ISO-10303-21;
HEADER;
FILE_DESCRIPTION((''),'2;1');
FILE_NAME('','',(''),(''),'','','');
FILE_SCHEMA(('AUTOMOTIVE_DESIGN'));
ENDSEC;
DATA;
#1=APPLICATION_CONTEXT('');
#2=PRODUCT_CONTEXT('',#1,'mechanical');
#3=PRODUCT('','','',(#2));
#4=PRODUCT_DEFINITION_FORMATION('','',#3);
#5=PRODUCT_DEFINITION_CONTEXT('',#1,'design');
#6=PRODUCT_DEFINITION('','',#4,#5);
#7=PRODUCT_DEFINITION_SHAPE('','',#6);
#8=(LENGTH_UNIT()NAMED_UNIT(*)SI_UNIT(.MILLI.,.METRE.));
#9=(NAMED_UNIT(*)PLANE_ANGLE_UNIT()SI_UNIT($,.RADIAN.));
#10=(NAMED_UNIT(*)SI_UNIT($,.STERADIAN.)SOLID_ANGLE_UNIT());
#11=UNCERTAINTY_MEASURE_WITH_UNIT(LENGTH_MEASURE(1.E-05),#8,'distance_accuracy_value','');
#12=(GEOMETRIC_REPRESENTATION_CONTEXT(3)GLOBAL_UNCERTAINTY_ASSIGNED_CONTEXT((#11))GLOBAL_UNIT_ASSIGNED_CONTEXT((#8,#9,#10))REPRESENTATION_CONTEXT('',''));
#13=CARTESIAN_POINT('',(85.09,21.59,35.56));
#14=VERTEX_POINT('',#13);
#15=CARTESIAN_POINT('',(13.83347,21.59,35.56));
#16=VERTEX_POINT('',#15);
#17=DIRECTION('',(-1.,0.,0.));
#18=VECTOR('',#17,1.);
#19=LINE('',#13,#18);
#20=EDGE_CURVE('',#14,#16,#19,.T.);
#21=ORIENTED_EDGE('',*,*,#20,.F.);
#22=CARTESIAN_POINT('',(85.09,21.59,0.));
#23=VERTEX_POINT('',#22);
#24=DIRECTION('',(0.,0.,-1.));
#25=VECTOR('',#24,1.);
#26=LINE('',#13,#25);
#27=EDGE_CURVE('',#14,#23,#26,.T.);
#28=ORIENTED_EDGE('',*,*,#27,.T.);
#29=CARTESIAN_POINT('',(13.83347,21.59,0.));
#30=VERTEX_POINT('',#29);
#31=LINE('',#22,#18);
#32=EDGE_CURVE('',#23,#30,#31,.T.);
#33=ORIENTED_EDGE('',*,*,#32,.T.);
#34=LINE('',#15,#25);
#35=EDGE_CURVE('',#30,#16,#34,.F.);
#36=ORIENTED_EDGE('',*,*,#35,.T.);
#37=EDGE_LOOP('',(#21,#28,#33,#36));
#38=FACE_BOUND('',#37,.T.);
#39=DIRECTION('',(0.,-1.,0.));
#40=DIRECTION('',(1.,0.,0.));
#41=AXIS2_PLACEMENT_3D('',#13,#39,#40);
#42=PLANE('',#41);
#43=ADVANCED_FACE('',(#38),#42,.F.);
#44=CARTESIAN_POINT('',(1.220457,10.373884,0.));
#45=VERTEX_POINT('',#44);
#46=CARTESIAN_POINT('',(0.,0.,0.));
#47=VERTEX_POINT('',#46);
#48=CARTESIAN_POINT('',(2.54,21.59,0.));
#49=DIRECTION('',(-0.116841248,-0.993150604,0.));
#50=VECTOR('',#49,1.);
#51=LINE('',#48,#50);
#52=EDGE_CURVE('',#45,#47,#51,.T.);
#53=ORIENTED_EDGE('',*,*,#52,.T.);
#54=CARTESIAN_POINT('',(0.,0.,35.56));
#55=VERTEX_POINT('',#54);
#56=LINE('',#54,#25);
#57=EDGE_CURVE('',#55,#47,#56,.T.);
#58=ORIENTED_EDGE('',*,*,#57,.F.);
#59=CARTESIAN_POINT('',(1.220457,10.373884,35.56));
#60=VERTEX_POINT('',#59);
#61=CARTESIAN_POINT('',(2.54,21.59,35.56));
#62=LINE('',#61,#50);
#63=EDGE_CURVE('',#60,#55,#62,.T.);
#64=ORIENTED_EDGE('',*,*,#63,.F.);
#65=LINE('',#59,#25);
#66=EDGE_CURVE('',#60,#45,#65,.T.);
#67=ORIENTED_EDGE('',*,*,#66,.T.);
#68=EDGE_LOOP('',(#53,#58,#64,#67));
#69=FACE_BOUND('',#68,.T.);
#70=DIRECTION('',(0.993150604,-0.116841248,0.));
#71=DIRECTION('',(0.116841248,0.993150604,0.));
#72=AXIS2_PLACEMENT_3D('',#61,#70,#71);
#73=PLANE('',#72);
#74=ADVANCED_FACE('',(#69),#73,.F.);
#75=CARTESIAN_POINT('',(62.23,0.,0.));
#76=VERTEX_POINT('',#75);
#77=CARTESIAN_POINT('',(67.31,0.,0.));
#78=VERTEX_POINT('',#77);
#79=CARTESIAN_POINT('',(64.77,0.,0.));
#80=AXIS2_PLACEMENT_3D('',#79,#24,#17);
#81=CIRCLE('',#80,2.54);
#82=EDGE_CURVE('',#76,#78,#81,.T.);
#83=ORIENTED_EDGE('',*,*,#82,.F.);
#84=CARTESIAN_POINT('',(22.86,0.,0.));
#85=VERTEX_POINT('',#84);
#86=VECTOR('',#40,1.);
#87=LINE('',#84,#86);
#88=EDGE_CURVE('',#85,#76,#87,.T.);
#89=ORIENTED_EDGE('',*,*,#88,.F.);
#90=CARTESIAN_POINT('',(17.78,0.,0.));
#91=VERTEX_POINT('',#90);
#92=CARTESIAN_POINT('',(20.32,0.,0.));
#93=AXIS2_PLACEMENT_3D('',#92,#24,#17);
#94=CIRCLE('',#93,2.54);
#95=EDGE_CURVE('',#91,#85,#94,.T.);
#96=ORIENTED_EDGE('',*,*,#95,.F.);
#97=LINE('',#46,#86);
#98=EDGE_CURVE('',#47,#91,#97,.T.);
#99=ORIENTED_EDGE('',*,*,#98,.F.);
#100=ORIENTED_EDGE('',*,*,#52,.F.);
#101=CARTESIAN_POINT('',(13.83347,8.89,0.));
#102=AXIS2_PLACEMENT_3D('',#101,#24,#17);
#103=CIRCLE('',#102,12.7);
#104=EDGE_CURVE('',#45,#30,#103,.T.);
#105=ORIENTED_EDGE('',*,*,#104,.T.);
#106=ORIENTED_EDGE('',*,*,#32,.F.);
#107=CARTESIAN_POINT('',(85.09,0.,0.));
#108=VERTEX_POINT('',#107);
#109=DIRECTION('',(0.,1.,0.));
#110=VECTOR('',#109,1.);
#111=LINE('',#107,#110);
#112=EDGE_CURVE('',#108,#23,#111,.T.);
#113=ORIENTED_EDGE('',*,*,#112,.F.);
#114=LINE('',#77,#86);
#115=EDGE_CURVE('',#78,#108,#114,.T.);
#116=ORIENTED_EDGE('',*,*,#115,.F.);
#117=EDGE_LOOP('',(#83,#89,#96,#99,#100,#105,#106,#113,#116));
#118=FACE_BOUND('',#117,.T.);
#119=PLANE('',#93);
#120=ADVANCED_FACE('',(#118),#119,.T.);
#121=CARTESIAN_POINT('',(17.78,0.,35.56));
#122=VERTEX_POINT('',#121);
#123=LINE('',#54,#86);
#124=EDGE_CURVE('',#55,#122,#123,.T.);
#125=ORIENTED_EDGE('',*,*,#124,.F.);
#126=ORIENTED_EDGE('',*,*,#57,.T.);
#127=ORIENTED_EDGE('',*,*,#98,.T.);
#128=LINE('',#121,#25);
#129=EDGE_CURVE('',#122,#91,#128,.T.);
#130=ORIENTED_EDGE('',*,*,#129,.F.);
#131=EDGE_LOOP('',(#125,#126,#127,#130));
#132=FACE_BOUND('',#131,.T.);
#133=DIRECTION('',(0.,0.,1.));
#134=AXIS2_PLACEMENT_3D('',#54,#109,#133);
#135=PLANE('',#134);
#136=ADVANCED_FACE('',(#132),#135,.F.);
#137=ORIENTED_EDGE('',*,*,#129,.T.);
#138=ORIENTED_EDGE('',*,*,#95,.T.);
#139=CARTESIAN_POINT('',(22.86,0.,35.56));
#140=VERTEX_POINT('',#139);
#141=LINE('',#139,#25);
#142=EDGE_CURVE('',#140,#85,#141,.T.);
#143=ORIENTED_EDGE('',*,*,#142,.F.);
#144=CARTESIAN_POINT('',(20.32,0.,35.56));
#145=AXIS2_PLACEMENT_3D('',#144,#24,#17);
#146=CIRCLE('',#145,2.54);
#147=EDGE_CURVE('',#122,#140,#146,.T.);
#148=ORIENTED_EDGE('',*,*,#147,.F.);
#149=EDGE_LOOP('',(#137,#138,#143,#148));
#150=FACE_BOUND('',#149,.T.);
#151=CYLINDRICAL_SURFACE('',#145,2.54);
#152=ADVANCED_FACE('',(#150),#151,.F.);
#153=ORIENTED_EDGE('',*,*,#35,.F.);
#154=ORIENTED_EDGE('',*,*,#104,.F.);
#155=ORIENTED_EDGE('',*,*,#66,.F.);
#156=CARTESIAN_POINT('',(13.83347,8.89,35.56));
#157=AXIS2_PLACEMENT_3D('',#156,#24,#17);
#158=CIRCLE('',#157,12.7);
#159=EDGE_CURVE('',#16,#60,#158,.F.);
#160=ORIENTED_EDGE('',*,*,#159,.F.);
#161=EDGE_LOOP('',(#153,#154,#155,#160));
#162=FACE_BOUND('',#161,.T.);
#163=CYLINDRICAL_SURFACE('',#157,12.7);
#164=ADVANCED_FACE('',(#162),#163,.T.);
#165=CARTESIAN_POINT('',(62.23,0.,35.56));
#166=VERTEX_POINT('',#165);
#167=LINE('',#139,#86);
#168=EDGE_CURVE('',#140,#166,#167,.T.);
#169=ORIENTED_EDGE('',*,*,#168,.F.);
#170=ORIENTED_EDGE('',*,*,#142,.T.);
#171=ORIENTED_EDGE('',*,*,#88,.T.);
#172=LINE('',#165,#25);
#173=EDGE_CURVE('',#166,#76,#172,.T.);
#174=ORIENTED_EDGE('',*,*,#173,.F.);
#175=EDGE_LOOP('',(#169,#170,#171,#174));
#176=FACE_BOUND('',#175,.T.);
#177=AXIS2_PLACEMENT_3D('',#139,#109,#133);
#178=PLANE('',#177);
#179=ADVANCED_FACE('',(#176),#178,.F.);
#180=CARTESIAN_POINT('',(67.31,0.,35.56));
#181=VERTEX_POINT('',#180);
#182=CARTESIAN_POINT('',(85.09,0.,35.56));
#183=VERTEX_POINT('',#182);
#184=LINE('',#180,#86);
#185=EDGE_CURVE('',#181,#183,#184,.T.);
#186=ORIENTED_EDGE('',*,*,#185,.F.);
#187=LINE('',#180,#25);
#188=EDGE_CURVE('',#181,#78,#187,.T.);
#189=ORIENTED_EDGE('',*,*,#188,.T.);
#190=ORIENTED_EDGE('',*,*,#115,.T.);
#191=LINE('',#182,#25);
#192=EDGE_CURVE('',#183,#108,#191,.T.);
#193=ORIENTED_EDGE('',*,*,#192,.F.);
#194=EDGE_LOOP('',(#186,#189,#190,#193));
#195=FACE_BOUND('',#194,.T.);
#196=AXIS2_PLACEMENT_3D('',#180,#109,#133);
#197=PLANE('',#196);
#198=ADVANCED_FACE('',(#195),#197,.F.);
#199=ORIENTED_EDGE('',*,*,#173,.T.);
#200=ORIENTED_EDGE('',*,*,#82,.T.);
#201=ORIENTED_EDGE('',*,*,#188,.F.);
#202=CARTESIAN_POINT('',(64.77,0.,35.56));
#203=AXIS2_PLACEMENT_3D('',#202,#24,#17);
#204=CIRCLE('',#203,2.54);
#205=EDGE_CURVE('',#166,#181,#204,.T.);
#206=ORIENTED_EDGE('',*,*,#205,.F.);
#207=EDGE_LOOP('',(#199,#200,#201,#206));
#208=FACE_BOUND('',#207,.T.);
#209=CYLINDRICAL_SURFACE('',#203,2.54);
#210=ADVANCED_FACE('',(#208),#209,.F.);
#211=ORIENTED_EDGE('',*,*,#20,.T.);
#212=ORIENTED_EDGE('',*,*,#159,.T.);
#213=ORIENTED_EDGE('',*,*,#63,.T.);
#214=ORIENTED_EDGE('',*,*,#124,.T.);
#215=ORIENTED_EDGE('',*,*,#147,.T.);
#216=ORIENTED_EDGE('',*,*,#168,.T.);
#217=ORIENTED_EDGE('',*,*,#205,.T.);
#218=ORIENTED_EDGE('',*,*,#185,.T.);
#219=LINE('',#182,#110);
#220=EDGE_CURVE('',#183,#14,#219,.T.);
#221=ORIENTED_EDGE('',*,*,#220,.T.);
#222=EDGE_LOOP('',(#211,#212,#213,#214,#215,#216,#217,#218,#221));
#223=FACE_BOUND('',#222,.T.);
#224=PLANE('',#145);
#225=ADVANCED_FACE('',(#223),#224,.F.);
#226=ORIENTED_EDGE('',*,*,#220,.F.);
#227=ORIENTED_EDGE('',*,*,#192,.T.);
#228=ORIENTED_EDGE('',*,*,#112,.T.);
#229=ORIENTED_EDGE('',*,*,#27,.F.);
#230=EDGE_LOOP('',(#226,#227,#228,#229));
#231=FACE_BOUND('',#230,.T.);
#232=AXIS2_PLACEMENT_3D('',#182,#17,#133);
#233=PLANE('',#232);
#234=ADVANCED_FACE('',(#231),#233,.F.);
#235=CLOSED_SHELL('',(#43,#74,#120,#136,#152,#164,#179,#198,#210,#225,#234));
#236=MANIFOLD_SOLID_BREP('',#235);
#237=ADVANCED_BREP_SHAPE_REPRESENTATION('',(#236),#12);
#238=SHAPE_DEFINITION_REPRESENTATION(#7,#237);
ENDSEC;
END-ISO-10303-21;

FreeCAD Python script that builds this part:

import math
import FreeCAD as App
import Part
import Sketcher
Q = App.Units.Quantity


def edges_at(feature, points):
    """Names of the edges that pass closest to the given points."""
    edges = feature.Shape.Edges
    near = lambda p: min(range(len(edges)), key=lambda i: edges[i].distToShape(Part.Vertex(*p))[0])
    return sorted({f"Edge{near(p) + 1}" for p in points})

doc = App.newDocument("Part")
body = doc.addObject("PartDesign::Body", "Body")

# Sketch on XY plane
sketch1 = doc.addObject("Sketcher::SketchObject", "Sketch")
body.addObject(sketch1)
sketch1.AttachmentSupport = (doc.XY_Plane, [""])
sketch1.MapMode = "FlatFace"
sketch1.addGeometry([
    Part.LineSegment(App.Vector(85.09, 0, 0), App.Vector(85.09, 21.59, 0)),  # 0
    Part.LineSegment(App.Vector(85.09, 21.59, 0), App.Vector(2.54, 21.59, 0)),  # 1
    Part.LineSegment(App.Vector(2.54, 21.59, 0), App.Vector(0, 0, 0)),  # 2
    Part.LineSegment(App.Vector(0, 0, 0), App.Vector(17.78, 0, 0)),  # 3
    Part.ArcOfCircle(Part.Circle(App.Vector(20.32, 0, 0), App.Vector(0, 0, 1), 2.54), math.radians(0), math.radians(180)),  # 4
    Part.LineSegment(App.Vector(22.86, 0, 0), App.Vector(62.23, 0, 0)),  # 5
    Part.ArcOfCircle(Part.Circle(App.Vector(64.77, 0, 0), App.Vector(0, 0, 1), 2.54), math.radians(0), math.radians(180)),  # 6
    Part.LineSegment(App.Vector(67.31, 0, 0), App.Vector(85.09, 0, 0)),  # 7
], False)
sketch1.addConstraint([
    Sketcher.Constraint("Coincident", 0, 2, 1, 1),
    Sketcher.Constraint("Coincident", 1, 2, 2, 1),
    Sketcher.Constraint("Coincident", 2, 2, 3, 1),
    Sketcher.Constraint("Coincident", 3, 2, 4, 2),
    Sketcher.Constraint("Coincident", 4, 1, 5, 1),
    Sketcher.Constraint("Coincident", 5, 2, 6, 2),
    Sketcher.Constraint("Coincident", 6, 1, 7, 1),
    Sketcher.Constraint("Coincident", 7, 2, 0, 1),
    Sketcher.Constraint("Vertical", 0),
    Sketcher.Constraint("Horizontal", 1),
    Sketcher.Constraint("Horizontal", 3),
    Sketcher.Constraint("Horizontal", 5),
    Sketcher.Constraint("Horizontal", 7),
    Sketcher.Constraint("Coincident", 2, 2, -1, 1),
    Sketcher.Constraint("Equal", 4, 6),
    Sketcher.Constraint("PointOnObject", 4, 3, -1),
    Sketcher.Constraint("PointOnObject", 6, 3, -1),
    Sketcher.Constraint("PointOnObject", 4, 1, -1),
    Sketcher.Constraint("PointOnObject", 6, 1, -1),
    Sketcher.Constraint("Equal", 3, 7),
    Sketcher.Constraint("Radius", 4, Q("0.1 in")),
    Sketcher.Constraint("DistanceX", 3, 1, 3, 2, Q("0.7 in")),
    Sketcher.Constraint("DistanceX", 1, 2, 1, 1, Q("3.25 in")),
    Sketcher.Constraint("DistanceX", 5, 1, 5, 2, Q("1.55 in")),
    Sketcher.Constraint("DistanceY", 0, 1, 0, 2, Q("0.85 in")),
])
pad1 = doc.addObject("PartDesign::Pad", "Pad")
body.addObject(pad1)
pad1.Profile = sketch1
pad1.Length = Q("1.4 in")
doc.recompute()

fillet = doc.addObject("PartDesign::Fillet", "Fillet")
body.addObject(fillet)
fillet.Base = (pad1, edges_at(pad1, [(2.54, 21.59, 17.78)]))
fillet.Radius = Q("0.5 in")

doc.recompute()
